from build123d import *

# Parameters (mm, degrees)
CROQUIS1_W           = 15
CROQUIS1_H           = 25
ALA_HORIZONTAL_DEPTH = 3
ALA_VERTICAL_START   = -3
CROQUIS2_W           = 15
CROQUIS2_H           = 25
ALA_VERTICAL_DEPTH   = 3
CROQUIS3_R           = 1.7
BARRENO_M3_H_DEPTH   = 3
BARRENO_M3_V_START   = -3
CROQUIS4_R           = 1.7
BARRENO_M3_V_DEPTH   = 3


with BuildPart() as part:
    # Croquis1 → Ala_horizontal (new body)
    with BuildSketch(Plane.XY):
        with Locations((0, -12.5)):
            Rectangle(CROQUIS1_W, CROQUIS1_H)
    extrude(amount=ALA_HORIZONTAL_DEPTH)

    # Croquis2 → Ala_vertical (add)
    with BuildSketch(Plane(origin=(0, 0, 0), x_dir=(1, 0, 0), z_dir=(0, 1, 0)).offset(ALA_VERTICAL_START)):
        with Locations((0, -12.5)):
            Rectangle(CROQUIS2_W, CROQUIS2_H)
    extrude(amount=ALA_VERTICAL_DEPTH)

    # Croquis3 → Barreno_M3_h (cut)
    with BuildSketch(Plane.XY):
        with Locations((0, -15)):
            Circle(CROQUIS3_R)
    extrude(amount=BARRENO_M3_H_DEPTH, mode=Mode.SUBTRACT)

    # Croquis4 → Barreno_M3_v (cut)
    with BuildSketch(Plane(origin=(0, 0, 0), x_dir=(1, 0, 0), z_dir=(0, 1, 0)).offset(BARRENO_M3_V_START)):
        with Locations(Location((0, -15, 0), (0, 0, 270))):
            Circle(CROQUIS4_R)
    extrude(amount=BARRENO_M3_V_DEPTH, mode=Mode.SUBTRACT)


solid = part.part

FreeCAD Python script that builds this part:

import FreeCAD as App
import Part
import Sketcher

V = App.Vector


def add_polygon(sketch, points):
    """Adds a closed chain of lines whose ends are joined by coincident constraints."""
    first, n = sketch.GeometryCount, len(points)
    for a, b in zip(points, points[1:] + points[:1]):
        sketch.addGeometry(Part.LineSegment(App.Vector(*a, 0), App.Vector(*b, 0)), False)
    for i in range(n):
        sketch.addConstraint(Sketcher.Constraint("Coincident", first + i, 2, first + (i + 1) % n, 1))

doc = App.newDocument("Part")
body = doc.addObject("PartDesign::Body", "Body")

# Sketch on XY plane
sketch1 = body.newObject("Sketcher::SketchObject", "Sketch")
sketch1.AttachmentSupport = (doc.getObject("XY_Plane"), [""])
sketch1.MapMode = "FlatFace"
add_polygon(sketch1, [(-7.5, 0), (-7.5, -25), (7.5, -25), (7.5, 0)])  # lines 0-3
sketch1.addConstraint(Sketcher.Constraint("Vertical", 0))
sketch1.addConstraint(Sketcher.Constraint("Horizontal", 1))
sketch1.addConstraint(Sketcher.Constraint("Vertical", 2))
sketch1.addConstraint(Sketcher.Constraint("Horizontal", 3))
sketch1.addConstraint(Sketcher.Constraint("Symmetric", 2, 2, 3, 2, -1, 1))
sketch1.addConstraint(Sketcher.Constraint("DistanceX", 1, 1, 1, 2, 15.0))
sketch1.addConstraint(Sketcher.Constraint("DistanceY", 0, 2, 0, 1, 25.0))
pad1 = body.newObject("PartDesign::Pad", "Pad")
pad1.Profile = sketch1
pad1.Length = 3

# Sketch on XZ plane
sketch2 = body.newObject("Sketcher::SketchObject", "Sketch001")
sketch2.AttachmentSupport = (doc.getObject("XZ_Plane"), [""])
sketch2.MapMode = "FlatFace"
sketch2.AttachmentOffset = App.Placement(V(0, 0, 3), App.Rotation())
add_polygon(sketch2, [(-7.5, 0), (-7.5, 25), (7.5, 25), (7.5, 0)])  # lines 0-3
sketch2.addConstraint(Sketcher.Constraint("Vertical", 0))
sketch2.addConstraint(Sketcher.Constraint("Horizontal", 1))
sketch2.addConstraint(Sketcher.Constraint("Vertical", 2))
sketch2.addConstraint(Sketcher.Constraint("Horizontal", 3))
sketch2.addConstraint(Sketcher.Constraint("Symmetric", 2, 2, 3, 2, -1, 1))
sketch2.addConstraint(Sketcher.Constraint("DistanceX", 1, 1, 1, 2, 15.0))
sketch2.addConstraint(Sketcher.Constraint("DistanceY", 0, 1, 0, 2, 25.0))
pad2 = body.newObject("PartDesign::Pad", "Pad001")
pad2.Profile = sketch2
pad2.Length = 3
pad2.Reversed = True

# Sketch on XY plane
sketch3 = body.newObject("Sketcher::SketchObject", "Sketch002")
sketch3.AttachmentSupport = (doc.getObject("XY_Plane"), [""])
sketch3.MapMode = "FlatFace"
sketch3.addGeometry(Part.Circle(V(0, -15, 0), V(0, 0, 1), 1.7), False)
sketch3.addConstraint(Sketcher.Constraint("PointOnObject", 0, 3, -2))
sketch3.addConstraint(Sketcher.Constraint("Diameter", 0, 3.4))
sketch3.addConstraint(Sketcher.Constraint("DistanceY", 0, 3, -1, 1, 15.0))
pocket1 = body.newObject("PartDesign::Pocket", "Pocket")
pocket1.Profile = sketch3
pocket1.Length = 3
pocket1.Reversed = True

# Sketch on XZ plane
sketch4 = body.newObject("Sketcher::SketchObject", "Sketch003")
sketch4.AttachmentSupport = (doc.getObject("XZ_Plane"), [""])
sketch4.MapMode = "FlatFace"
sketch4.AttachmentOffset = App.Placement(V(0, 0, 3), App.Rotation())
sketch4.addGeometry(Part.Circle(V(0, 15, 0), V(0, 0, 1), 1.7), False)
sketch4.addConstraint(Sketcher.Constraint("PointOnObject", 0, 3, -2))
sketch4.addConstraint(Sketcher.Constraint("Diameter", 0, 3.4))
sketch4.addConstraint(Sketcher.Constraint("DistanceY", -1, 1, 0, 3, 15.0))
pocket2 = body.newObject("PartDesign::Pocket", "Pocket001")
pocket2.Profile = sketch4
pocket2.Length = 3

doc.recompute()
